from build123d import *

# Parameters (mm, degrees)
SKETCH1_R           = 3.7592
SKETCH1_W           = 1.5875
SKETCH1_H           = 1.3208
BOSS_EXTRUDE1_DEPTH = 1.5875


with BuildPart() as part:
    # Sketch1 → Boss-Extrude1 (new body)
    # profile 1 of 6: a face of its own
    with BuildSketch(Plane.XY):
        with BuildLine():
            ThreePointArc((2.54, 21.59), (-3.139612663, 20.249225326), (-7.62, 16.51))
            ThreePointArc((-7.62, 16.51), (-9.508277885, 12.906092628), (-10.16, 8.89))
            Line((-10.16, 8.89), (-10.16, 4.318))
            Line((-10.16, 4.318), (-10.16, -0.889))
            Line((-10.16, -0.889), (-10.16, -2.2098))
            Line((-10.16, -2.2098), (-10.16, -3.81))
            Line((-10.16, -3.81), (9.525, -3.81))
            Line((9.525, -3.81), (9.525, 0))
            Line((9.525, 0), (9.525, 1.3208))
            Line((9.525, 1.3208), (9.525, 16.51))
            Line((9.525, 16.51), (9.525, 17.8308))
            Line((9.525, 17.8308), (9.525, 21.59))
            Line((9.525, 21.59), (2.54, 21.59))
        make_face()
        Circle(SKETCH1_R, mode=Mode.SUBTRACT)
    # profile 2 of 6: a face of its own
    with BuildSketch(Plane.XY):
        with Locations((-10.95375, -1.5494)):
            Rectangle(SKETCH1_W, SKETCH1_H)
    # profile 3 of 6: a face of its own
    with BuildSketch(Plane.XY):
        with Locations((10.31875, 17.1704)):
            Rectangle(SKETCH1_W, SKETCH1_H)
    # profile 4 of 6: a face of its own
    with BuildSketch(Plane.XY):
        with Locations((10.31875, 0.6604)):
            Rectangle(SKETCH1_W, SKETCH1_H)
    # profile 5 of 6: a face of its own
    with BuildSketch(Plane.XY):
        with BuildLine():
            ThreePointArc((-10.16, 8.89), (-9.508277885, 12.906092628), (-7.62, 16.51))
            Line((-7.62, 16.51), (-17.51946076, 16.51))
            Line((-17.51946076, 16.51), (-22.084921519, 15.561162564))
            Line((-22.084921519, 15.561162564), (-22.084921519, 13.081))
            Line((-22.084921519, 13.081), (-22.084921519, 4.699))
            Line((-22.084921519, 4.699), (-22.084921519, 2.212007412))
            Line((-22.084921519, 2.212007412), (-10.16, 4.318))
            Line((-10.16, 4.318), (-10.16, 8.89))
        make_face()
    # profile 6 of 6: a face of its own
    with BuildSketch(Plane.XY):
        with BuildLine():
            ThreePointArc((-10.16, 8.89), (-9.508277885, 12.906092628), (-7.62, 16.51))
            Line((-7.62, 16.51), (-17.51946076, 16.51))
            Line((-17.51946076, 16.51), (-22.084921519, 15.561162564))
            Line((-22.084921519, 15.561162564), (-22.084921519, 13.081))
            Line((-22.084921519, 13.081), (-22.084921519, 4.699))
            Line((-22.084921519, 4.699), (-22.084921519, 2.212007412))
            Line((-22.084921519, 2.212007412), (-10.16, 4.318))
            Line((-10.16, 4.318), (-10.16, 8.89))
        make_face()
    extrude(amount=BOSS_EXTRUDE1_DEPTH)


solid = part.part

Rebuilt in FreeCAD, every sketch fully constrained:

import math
import FreeCAD as App
import Part
import Sketcher
from FreeCAD import Vector
Q = App.Units.Quantity

doc = App.newDocument("Part")
params = doc.addObject("Spreadsheet::Sheet", "Params")
for row, (alias, value) in enumerate([
    ("sketch1_radius", "0.5 in"),
    ("sketch1_diameter", "0.296 in"),
    ("sketch1_height", "0.15 in"),
    ("sketch1_width", "0.0625 in"),
    ("sketch1_width2", "0.775 in"),
    ("pad1_length", "0.0625 in"),
], start=1):
    params.set(f"A{row}", alias)
    params.set(f"B{row}", "=" + value)
    params.setAlias(f"B{row}", alias)

body = doc.addObject("PartDesign::Body", "Body")

# Sketch on XY plane
sketch1 = body.newObject("Sketcher::SketchObject", "Sketch")
sketch1.AttachmentSupport = (doc.getObject("XY_Plane"), [""])
sketch1.MapMode = "FlatFace"
sketch1.addGeometry(Part.ArcOfCircle(Part.Circle(Vector(2.5, 8.9, 0), Vector(0, 0, 1), 12.7), math.radians(90), math.radians(143)), False)
sketch1.addGeometry(Part.LineSegment(Vector(-7.6, 16.5, 0), Vector(-17.5, 16.5, 0)), False)
sketch1.addGeometry(Part.LineSegment(Vector(-17.5, 16.5, 0), Vector(-22.1, 15.6, 0)), False)
sketch1.addGeometry(Part.LineSegment(Vector(-22.1, 15.6, 0), Vector(-22.1, 2.2, 0)), False)
sketch1.addGeometry(Part.LineSegment(Vector(-22.1, 2.2, 0), Vector(-10.2, 4.3, 0)), False)
sketch1.addGeometry(Part.LineSegment(Vector(-10.2, 4.3, 0), Vector(-10.2, -0.9, 0)), False)
sketch1.addGeometry(Part.LineSegment(Vector(-10.2, -0.9, 0), Vector(-11.7, -0.9, 0)), False)
sketch1.addGeometry(Part.LineSegment(Vector(-11.7, -0.9, 0), Vector(-11.7, -2.2, 0)), False)
sketch1.addGeometry(Part.LineSegment(Vector(-11.7, -2.2, 0), Vector(-10.2, -2.2, 0)), False)
sketch1.addGeometry(Part.LineSegment(Vector(-10.2, -2.2, 0), Vector(-10.2, -3.8, 0)), False)
sketch1.addGeometry(Part.LineSegment(Vector(-10.2, -3.8, 0), Vector(9.5, -3.8, 0)), False)
sketch1.addGeometry(Part.LineSegment(Vector(9.5, -3.8, 0), Vector(9.5, 0, 0)), False)
sketch1.addGeometry(Part.LineSegment(Vector(9.5, 0, 0), Vector(11.1, 0, 0)), False)
sketch1.addGeometry(Part.LineSegment(Vector(11.1, 0, 0), Vector(11.1, 1.3, 0)), False)
sketch1.addGeometry(Part.LineSegment(Vector(11.1, 1.3, 0), Vector(9.5, 1.3, 0)), False)
sketch1.addGeometry(Part.LineSegment(Vector(9.5, 1.3, 0), Vector(9.5, 16.5, 0)), False)
sketch1.addGeometry(Part.LineSegment(Vector(9.5, 16.5, 0), Vector(11.1, 16.5, 0)), False)
sketch1.addGeometry(Part.LineSegment(Vector(11.1, 16.5, 0), Vector(11.1, 17.8, 0)), False)
sketch1.addGeometry(Part.LineSegment(Vector(11.1, 17.8, 0), Vector(9.5, 17.8, 0)), False)
sketch1.addGeometry(Part.LineSegment(Vector(9.5, 17.8, 0), Vector(9.5, 21.6, 0)), False)
sketch1.addGeometry(Part.LineSegment(Vector(9.5, 21.6, 0), Vector(2.5, 21.6, 0)), False)
sketch1.addGeometry(Part.Circle(Vector(0, 0, 0), Vector(0, 0, 1), 3.8), False)
sketch1.addConstraint(Sketcher.Constraint("Coincident", 0, 2, 1, 1))
sketch1.addConstraint(Sketcher.Constraint("Coincident", 1, 2, 2, 1))
sketch1.addConstraint(Sketcher.Constraint("Coincident", 2, 2, 3, 1))
sketch1.addConstraint(Sketcher.Constraint("Coincident", 3, 2, 4, 1))
sketch1.addConstraint(Sketcher.Constraint("Coincident", 4, 2, 5, 1))
sketch1.addConstraint(Sketcher.Constraint("Coincident", 5, 2, 6, 1))
sketch1.addConstraint(Sketcher.Constraint("Coincident", 6, 2, 7, 1))
sketch1.addConstraint(Sketcher.Constraint("Coincident", 7, 2, 8, 1))
sketch1.addConstraint(Sketcher.Constraint("Coincident", 8, 2, 9, 1))
sketch1.addConstraint(Sketcher.Constraint("Coincident", 9, 2, 10, 1))
sketch1.addConstraint(Sketcher.Constraint("Coincident", 10, 2, 11, 1))
sketch1.addConstraint(Sketcher.Constraint("Coincident", 11, 2, 12, 1))
sketch1.addConstraint(Sketcher.Constraint("Coincident", 12, 2, 13, 1))
sketch1.addConstraint(Sketcher.Constraint("Coincident", 13, 2, 14, 1))
sketch1.addConstraint(Sketcher.Constraint("Coincident", 14, 2, 15, 1))
sketch1.addConstraint(Sketcher.Constraint("Coincident", 15, 2, 16, 1))
sketch1.addConstraint(Sketcher.Constraint("Coincident", 16, 2, 17, 1))
sketch1.addConstraint(Sketcher.Constraint("Coincident", 17, 2, 18, 1))
sketch1.addConstraint(Sketcher.Constraint("Coincident", 18, 2, 19, 1))
sketch1.addConstraint(Sketcher.Constraint("Coincident", 19, 2, 20, 1))
sketch1.addConstraint(Sketcher.Constraint("Tangent", 20, 2, 0, 1))
sketch1.addConstraint(Sketcher.Constraint("Horizontal", 1))
sketch1.addConstraint(Sketcher.Constraint("Vertical", 3))
sketch1.addConstraint(Sketcher.Constraint("Vertical", 5))
sketch1.addConstraint(Sketcher.Constraint("Horizontal", 6))
sketch1.addConstraint(Sketcher.Constraint("Vertical", 7))
sketch1.addConstraint(Sketcher.Constraint("Horizontal", 8))
sketch1.addConstraint(Sketcher.Constraint("Vertical", 9))
sketch1.addConstraint(Sketcher.Constraint("Horizontal", 10))
sketch1.addConstraint(Sketcher.Constraint("Vertical", 11))
sketch1.addConstraint(Sketcher.Constraint("Horizontal", 12))
sketch1.addConstraint(Sketcher.Constraint("Vertical", 13))
sketch1.addConstraint(Sketcher.Constraint("Horizontal", 14))
sketch1.addConstraint(Sketcher.Constraint("Vertical", 15))
sketch1.addConstraint(Sketcher.Constraint("Horizontal", 16))
sketch1.addConstraint(Sketcher.Constraint("Vertical", 17))
sketch1.addConstraint(Sketcher.Constraint("Horizontal", 18))
sketch1.addConstraint(Sketcher.Constraint("Vertical", 19))
sketch1.addConstraint(Sketcher.Constraint("Horizontal", 20))
sketch1.addConstraint(Sketcher.Constraint("Coincident", 21, 3, -1, 1))
sketch1.addConstraint(Sketcher.Constraint("PointOnObject", 11, 2, -1))
sketch1.addConstraint(Sketcher.Constraint("Horizontal", 1, 2, 15, 2))
sketch1.addConstraint(Sketcher.Constraint("Vertical", 5, 2, 8, 2))
sketch1.addConstraint(Sketcher.Constraint("Vertical", 11, 2, 14, 2))
sketch1.addConstraint(Sketcher.Constraint("Vertical", 13, 2, 16, 2))
sketch1.addConstraint(Sketcher.Constraint("Vertical", 15, 2, 18, 2))
sketch1.addConstraint(Sketcher.Constraint("Equal", 8, 12))
sketch1.addConstraint(Sketcher.Constraint("Equal", 7, 13))
sketch1.addConstraint(Sketcher.Constraint("Equal", 13, 17))
sketch1.addConstraint(Sketcher.Constraint("Radius", 0, Q("0.5 in")))
sketch1.addConstraint(Sketcher.Constraint("Diameter", 21, Q("0.296 in")))
sketch1.addConstraint(Sketcher.Constraint("DistanceY", 11, 1, 11, 2, Q("0.15 in")))
sketch1.addConstraint(Sketcher.Constraint("DistanceX", -1, 1, 0, 3, Q("0.1 in")))
sketch1.addConstraint(Sketcher.Constraint("DistanceX", 0, 2, -1, 1, Q("0.3 in")))
sketch1.addConstraint(Sketcher.Constraint("DistanceX", 4, 2, -1, 1, Q("0.4 in")))
sketch1.addConstraint(Sketcher.Constraint("DistanceY", 10, 2, 0, 3, Q("0.5 in")))
sketch1.addConstraint(Sketcher.Constraint("DistanceX", 6, 2, 6, 1, Q("0.0625 in")))
sketch1.addConstraint(Sketcher.Constraint("DistanceX", 10, 1, 10, 2, Q("0.775 in")))
sketch1.addConstraint(Sketcher.Constraint("DistanceY", 5, 2, 5, 1, Q("0.205 in")))
sketch1.addConstraint(Sketcher.Constraint("DistanceY", 7, 2, 7, 1, Q("0.052 in")))
sketch1.addConstraint(Sketcher.Constraint("DistanceY", 9, 2, 9, 1, Q("0.063 in")))
sketch1.addConstraint(Sketcher.Constraint("DistanceX", 1, 2, 1, 1, Q("9.899461 mm")))
sketch1.addConstraint(Sketcher.Constraint("DistanceY", 3, 2, 3, 1, Q("13.349155 mm")))
sketch1.addConstraint(Sketcher.Constraint("DistanceX", 2, 2, -1, 1, Q("22.084922 mm")))
sketch1.addConstraint(Sketcher.Constraint("Distance", 2, Q("4.663017 mm")))
sketch1.setExpression("Constraints[49]", "Params.sketch1_radius")
sketch1.setExpression("Constraints[50]", "Params.sketch1_diameter")
sketch1.setExpression("Constraints[51]", "Params.sketch1_height")
sketch1.setExpression("Constraints[56]", "Params.sketch1_width")
sketch1.setExpression("Constraints[57]", "Params.sketch1_width2")
pad1 = body.newObject("PartDesign::Pad", "Pad")
pad1.Profile = sketch1
pad1.setExpression("Length", "Params.pad1_length")

doc.recompute()
